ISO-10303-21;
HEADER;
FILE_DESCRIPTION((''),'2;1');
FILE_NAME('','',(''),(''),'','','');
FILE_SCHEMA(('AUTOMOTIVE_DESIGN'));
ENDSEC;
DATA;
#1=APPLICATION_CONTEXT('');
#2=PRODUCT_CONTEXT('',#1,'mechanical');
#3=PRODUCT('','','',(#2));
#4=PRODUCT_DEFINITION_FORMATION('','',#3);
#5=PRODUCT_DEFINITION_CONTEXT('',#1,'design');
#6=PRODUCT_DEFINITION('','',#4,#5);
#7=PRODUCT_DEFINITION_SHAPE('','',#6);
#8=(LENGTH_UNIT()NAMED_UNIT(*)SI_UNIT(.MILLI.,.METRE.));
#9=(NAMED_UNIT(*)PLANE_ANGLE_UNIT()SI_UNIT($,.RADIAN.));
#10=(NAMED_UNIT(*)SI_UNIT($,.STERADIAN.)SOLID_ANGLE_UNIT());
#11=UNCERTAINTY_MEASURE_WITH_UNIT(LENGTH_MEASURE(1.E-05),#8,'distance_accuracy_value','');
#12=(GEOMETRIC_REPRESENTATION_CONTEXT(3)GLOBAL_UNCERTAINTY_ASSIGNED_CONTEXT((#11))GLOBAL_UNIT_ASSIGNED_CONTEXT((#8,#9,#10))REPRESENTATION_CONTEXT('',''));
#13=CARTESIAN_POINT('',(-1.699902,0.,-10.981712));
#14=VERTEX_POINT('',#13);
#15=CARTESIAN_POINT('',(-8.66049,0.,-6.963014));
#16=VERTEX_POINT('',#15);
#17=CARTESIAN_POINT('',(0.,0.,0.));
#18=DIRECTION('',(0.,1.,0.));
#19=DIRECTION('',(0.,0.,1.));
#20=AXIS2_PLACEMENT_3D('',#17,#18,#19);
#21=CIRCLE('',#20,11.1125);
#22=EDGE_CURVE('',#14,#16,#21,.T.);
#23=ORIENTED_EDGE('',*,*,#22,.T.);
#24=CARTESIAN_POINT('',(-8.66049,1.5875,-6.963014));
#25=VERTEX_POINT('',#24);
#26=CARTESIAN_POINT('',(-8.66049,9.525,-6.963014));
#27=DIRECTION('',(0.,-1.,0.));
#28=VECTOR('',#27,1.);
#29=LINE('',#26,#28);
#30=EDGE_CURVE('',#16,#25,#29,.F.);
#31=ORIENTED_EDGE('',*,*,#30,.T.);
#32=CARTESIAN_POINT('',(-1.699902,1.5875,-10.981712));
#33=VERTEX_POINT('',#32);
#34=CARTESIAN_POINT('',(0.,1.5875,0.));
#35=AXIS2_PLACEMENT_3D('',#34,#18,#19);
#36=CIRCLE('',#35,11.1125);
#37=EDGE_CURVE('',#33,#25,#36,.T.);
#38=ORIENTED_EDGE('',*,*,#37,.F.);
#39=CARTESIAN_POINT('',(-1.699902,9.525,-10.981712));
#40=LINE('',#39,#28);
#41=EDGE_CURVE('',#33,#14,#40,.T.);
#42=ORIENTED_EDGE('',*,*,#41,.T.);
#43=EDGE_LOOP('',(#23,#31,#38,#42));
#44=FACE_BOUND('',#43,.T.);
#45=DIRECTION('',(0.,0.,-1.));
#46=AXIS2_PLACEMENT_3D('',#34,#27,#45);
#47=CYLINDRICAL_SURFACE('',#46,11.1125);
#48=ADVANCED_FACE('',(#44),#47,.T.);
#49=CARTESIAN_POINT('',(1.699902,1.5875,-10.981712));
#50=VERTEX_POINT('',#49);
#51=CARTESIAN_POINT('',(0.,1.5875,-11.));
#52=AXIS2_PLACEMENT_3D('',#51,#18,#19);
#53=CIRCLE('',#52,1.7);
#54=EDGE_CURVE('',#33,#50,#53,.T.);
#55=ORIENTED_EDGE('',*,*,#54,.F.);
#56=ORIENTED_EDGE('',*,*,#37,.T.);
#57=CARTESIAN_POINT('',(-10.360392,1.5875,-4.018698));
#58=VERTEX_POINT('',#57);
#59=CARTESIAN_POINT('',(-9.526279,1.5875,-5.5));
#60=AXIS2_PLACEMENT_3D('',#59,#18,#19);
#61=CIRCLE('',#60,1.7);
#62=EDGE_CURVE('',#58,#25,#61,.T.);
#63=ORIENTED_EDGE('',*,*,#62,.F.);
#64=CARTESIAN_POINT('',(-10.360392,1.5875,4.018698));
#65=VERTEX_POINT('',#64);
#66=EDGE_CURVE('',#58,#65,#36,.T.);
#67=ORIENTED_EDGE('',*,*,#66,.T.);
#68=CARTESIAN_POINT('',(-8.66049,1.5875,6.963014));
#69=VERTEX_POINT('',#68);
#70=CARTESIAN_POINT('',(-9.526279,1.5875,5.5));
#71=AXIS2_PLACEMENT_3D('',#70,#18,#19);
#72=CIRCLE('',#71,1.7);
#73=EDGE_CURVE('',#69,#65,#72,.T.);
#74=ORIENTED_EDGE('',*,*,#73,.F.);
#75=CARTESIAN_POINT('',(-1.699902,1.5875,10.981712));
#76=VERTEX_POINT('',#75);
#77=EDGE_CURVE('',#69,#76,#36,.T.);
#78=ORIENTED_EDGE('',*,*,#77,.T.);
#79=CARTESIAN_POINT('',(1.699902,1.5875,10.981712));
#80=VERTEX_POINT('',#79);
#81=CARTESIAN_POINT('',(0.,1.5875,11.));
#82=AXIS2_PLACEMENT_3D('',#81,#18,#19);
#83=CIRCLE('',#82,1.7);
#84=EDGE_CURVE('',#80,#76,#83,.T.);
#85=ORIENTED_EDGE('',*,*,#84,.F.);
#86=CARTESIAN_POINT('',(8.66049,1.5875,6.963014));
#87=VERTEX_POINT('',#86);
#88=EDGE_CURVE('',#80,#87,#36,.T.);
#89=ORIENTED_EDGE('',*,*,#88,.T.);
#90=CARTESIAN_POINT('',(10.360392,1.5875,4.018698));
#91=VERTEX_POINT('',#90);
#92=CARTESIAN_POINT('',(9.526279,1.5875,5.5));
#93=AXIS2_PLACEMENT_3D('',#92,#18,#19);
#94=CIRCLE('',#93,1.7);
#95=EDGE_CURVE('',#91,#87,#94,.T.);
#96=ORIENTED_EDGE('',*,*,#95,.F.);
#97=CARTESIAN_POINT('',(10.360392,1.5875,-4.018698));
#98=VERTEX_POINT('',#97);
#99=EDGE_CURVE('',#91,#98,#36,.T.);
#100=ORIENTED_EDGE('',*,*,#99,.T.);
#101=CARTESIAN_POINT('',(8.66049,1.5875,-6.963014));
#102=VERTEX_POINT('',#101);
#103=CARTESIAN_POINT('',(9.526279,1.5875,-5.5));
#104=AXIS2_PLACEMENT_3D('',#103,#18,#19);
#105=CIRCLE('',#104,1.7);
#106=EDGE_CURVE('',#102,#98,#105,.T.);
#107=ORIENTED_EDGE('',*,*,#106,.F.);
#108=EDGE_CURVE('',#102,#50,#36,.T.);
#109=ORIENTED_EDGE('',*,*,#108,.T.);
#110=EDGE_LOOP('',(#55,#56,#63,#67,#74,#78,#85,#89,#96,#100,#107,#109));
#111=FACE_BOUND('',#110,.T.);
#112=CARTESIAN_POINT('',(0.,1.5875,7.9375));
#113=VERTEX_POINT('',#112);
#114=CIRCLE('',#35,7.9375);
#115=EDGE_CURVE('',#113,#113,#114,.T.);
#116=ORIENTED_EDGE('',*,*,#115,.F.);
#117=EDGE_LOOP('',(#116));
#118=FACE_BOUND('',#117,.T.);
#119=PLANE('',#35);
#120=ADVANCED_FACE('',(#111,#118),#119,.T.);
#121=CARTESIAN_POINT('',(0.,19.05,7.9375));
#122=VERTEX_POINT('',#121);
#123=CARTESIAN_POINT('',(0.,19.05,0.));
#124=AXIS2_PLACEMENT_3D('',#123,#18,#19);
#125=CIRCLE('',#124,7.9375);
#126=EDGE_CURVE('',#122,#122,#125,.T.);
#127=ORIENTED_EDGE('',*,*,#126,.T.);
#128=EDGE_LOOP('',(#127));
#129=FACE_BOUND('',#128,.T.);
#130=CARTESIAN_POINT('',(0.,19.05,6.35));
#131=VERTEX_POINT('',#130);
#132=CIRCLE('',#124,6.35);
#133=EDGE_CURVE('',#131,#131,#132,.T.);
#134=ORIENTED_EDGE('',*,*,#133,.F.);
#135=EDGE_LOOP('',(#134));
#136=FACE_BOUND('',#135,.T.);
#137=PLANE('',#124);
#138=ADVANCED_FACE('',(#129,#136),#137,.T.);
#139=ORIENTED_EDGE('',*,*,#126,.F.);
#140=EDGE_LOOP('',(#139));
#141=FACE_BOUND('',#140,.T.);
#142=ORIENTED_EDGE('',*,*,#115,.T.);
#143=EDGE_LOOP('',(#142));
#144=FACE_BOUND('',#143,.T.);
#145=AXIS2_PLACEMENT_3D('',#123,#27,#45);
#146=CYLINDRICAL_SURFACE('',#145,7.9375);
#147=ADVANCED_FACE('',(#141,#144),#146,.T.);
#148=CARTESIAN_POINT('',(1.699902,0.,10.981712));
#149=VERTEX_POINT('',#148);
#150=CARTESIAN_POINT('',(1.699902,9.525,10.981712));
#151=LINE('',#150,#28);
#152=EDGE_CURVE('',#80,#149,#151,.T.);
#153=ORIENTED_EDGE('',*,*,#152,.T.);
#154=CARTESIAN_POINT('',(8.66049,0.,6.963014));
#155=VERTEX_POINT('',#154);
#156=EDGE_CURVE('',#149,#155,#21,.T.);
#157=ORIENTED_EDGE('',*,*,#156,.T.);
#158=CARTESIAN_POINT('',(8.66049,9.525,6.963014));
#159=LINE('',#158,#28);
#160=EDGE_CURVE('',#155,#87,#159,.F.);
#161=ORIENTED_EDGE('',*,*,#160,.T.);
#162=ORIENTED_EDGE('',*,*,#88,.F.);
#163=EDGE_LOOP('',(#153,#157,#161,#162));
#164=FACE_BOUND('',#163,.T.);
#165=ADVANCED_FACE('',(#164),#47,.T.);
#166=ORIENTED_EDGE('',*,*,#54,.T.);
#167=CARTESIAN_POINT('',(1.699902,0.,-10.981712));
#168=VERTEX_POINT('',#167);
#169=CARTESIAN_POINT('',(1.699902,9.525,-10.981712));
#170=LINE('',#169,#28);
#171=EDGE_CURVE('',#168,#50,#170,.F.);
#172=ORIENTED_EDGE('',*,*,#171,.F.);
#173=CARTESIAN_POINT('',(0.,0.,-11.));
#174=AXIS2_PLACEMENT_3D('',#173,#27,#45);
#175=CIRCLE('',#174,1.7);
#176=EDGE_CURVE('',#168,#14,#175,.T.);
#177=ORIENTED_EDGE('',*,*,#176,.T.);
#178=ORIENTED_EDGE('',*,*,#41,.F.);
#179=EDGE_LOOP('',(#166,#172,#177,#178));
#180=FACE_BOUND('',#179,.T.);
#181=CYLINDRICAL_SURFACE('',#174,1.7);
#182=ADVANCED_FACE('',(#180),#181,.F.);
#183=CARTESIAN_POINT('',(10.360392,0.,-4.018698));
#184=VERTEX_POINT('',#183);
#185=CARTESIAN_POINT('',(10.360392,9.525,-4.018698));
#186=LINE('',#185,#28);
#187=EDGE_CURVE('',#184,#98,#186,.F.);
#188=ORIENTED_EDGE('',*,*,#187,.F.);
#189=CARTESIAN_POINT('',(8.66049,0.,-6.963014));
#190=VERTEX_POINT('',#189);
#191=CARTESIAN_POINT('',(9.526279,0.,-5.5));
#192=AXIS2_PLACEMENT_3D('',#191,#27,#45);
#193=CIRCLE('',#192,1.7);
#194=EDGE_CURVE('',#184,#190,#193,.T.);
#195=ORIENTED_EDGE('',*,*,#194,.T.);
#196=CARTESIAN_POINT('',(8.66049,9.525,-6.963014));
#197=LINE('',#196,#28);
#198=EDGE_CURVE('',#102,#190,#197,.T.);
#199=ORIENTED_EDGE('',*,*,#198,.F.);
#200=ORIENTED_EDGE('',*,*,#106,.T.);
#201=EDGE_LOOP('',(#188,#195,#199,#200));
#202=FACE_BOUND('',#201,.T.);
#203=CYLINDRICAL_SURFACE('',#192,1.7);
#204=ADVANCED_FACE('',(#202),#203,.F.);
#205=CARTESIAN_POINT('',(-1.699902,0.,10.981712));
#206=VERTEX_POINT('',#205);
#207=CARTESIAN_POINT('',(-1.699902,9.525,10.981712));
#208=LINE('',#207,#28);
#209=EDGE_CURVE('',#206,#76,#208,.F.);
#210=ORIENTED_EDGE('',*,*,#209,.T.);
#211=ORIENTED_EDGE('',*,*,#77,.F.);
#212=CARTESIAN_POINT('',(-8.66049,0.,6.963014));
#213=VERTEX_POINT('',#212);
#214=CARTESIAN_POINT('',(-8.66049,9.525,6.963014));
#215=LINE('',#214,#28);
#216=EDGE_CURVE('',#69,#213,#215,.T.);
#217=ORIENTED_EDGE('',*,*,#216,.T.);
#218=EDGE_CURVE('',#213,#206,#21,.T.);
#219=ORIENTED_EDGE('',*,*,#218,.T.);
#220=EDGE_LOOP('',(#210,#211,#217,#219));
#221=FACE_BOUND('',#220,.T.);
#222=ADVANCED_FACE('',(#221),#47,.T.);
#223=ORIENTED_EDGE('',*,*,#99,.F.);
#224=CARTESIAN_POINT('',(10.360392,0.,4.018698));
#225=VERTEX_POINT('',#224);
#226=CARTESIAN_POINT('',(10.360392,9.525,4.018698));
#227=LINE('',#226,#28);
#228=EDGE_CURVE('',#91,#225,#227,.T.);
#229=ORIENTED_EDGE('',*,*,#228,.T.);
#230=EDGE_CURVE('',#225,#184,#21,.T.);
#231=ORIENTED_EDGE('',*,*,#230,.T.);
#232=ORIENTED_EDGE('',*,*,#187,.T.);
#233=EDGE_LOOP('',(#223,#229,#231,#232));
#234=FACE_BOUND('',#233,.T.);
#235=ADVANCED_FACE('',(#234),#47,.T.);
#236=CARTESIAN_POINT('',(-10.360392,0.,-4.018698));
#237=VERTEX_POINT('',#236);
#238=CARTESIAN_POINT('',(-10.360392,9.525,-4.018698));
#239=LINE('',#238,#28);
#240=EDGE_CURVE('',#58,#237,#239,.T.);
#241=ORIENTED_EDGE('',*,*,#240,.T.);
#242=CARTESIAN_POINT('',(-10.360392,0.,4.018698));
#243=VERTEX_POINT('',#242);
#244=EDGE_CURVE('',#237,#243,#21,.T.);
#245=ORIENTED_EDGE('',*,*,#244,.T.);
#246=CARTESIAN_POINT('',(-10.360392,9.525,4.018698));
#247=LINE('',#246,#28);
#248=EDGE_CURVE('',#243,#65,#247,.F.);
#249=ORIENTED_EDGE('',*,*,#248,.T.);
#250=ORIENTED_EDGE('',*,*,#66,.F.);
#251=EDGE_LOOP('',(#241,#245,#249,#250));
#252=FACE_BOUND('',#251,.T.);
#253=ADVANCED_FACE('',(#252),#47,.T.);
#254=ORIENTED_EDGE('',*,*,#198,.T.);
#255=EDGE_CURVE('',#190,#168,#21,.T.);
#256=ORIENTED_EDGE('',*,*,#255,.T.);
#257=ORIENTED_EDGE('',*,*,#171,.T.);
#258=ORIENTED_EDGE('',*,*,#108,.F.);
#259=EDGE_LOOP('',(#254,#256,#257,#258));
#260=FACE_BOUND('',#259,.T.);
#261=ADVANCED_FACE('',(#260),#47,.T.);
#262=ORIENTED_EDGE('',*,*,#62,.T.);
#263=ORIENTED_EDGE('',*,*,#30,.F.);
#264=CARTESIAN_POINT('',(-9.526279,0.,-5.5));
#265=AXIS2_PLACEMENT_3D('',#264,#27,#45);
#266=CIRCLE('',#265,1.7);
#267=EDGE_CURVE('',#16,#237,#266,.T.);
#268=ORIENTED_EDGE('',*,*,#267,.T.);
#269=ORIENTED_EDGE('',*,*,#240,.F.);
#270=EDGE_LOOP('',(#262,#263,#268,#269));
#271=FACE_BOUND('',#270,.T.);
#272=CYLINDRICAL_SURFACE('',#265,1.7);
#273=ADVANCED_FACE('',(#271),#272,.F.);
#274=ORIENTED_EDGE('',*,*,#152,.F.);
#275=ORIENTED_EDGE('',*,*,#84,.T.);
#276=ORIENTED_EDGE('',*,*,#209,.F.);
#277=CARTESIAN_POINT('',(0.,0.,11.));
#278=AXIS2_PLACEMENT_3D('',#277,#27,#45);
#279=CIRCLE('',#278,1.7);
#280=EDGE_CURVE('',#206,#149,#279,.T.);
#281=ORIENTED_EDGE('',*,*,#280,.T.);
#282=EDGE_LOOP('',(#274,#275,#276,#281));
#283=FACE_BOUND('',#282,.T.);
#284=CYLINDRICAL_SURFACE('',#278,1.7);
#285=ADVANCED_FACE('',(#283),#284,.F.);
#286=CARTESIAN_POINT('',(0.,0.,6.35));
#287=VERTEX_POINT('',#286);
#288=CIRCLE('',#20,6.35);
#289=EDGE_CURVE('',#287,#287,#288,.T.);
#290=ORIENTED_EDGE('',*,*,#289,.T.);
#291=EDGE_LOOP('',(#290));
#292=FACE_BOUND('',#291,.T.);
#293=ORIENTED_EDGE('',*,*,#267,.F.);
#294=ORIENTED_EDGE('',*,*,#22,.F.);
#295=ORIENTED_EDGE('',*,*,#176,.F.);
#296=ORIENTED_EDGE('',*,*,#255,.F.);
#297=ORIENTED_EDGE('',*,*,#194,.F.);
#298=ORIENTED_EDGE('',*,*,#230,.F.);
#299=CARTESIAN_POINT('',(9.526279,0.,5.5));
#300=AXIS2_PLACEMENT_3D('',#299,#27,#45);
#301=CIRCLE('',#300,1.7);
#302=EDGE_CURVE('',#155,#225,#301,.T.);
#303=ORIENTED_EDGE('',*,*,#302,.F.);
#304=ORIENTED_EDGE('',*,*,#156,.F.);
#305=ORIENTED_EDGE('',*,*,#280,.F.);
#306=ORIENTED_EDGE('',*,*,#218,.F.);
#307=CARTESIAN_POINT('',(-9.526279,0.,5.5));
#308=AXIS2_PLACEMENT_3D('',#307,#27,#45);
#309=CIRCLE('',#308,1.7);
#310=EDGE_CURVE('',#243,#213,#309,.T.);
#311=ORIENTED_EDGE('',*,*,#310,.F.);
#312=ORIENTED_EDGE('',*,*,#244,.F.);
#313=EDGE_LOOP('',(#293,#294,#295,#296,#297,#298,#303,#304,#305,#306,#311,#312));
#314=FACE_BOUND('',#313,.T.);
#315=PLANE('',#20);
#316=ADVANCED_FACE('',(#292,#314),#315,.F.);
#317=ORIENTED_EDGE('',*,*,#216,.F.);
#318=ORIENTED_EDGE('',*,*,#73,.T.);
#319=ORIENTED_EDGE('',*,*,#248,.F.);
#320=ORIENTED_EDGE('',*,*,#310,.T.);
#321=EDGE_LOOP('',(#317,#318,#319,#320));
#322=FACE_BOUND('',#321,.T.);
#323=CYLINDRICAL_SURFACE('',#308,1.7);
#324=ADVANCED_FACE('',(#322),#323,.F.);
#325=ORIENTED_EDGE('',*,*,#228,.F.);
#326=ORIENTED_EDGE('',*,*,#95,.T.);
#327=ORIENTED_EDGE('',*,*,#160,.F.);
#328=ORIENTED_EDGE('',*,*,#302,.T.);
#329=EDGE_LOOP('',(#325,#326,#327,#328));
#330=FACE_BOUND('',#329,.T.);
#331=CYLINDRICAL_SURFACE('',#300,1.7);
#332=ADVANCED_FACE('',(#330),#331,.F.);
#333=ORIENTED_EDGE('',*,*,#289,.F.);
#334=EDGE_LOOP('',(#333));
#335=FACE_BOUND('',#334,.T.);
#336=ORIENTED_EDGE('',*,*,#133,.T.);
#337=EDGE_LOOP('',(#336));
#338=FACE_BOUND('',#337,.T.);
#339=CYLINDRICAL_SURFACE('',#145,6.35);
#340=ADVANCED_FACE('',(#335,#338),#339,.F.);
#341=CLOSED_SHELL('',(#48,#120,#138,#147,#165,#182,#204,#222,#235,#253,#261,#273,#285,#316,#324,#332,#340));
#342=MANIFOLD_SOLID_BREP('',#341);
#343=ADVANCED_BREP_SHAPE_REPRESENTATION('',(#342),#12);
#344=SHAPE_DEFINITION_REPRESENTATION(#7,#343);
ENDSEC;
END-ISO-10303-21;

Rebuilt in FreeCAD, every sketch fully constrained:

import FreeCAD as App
import Part
import Sketcher
Q = App.Units.Quantity

doc = App.newDocument("Part")
body = doc.addObject("PartDesign::Body", "Body")

sketch1 = body.newObject("Sketcher::SketchObject", "Sketch")
sketch1.AttachmentSupport = (doc.getObject("XZ_Plane"), [""])
sketch1.MapMode = "FlatFace"
sketch1.addGeometry(Part.Circle(App.Vector(0, 0, 0), App.Vector(0, 0, 1), 8), False)
sketch1.addGeometry(Part.Circle(App.Vector(0, 0, 0), App.Vector(0, 0, 1), 6), False)
sketch1.addConstraint(Sketcher.Constraint("Coincident", 0, 3, -1, 1))
sketch1.addConstraint(Sketcher.Constraint("Coincident", 1, 3, -1, 1))
sketch1.addConstraint(Sketcher.Constraint("Diameter", 1, Q("0.5 in")))
sketch1.addConstraint(Sketcher.Constraint("Diameter", 0, Q("0.625 in")))
pad1 = body.newObject("PartDesign::Pad", "Pad")
pad1.Profile = sketch1
pad1.Length = Q("0.75 in")
pad1.Reversed = True

sketch2 = body.newObject("Sketcher::SketchObject", "Sketch001")
sketch2.AttachmentSupport = (doc.getObject("XZ_Plane"), [""])
sketch2.MapMode = "FlatFace"
sketch2.addGeometry(Part.Circle(App.Vector(0, 0, 0), App.Vector(0, 0, 1), 11), False)
sketch2.addGeometry(Part.Circle(App.Vector(0, 0, 0), App.Vector(0, 0, 1), 8), False)
sketch2.addConstraint(Sketcher.Constraint("Coincident", 0, 3, -1, 1))
sketch2.addConstraint(Sketcher.Constraint("Coincident", 1, 3, -1, 1))
sketch2.addConstraint(Sketcher.Constraint("Diameter", 0, Q("0.875 in")))
sketch2.addConstraint(Sketcher.Constraint("Diameter", 1, Q("0.625 in")))
pad2 = body.newObject("PartDesign::Pad", "Pad001")
pad2.Profile = sketch2
pad2.Length = Q("0.0625 in")
pad2.Reversed = True

sketch3 = body.newObject("Sketcher::SketchObject", "Sketch002")
sketch3.AttachmentSupport = (doc.getObject("XZ_Plane"), [""])
sketch3.MapMode = "FlatFace"
sketch3.addGeometry(Part.Circle(App.Vector(0, 11, 0), App.Vector(0, 0, 1), 1.7), False)
sketch3.addConstraint(Sketcher.Constraint("PointOnObject", 0, 3, -2))
sketch3.addConstraint(Sketcher.Constraint("Diameter", 0, 3.4))
sketch3.addConstraint(Sketcher.Constraint("DistanceY", -1, 1, 0, 3, 11.0))
doc.recompute()
hole = body.newObject("PartDesign::Hole", "Hole")
hole.Profile = sketch3
hole.ThreadType = "None"
hole.Diameter = 3.4
hole.DepthType = "ThroughAll"
doc.recompute()

polarpattern = body.newObject("PartDesign::PolarPattern", "PolarPattern")
polarpattern.Originals = [hole]
polarpattern.Axis = (doc.getObject("Y_Axis"), [""])
polarpattern.Angle = 360
polarpattern.Occurrences = 6
body.Tip = polarpattern

doc.recompute()
